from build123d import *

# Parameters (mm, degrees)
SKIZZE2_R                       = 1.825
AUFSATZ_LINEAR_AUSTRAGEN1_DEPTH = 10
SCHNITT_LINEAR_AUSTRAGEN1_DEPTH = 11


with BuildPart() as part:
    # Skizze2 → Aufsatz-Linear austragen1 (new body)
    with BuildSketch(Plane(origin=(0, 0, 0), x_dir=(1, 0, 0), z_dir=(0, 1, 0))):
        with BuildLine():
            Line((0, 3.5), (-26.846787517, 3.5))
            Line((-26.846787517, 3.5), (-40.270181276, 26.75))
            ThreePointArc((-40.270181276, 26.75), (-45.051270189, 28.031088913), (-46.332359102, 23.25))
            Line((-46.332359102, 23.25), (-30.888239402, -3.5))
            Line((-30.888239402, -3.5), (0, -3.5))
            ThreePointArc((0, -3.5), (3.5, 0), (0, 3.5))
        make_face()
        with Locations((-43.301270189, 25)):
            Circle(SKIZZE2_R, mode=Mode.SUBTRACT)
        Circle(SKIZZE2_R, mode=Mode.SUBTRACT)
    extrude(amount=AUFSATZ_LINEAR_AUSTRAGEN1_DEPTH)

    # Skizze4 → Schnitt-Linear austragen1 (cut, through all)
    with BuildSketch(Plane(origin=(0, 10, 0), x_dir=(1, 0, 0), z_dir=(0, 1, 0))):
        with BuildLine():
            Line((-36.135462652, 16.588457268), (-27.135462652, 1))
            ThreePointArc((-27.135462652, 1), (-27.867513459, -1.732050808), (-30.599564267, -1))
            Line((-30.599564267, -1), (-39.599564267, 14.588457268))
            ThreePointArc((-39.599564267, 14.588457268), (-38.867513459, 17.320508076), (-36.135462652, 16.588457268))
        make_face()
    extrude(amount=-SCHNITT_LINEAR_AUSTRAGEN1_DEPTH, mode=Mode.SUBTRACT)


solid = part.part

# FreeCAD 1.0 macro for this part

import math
import FreeCAD as App
import Part
import Sketcher

V = App.Vector
Q = App.Units.Quantity

doc = App.newDocument("Part")
params = doc.addObject("Spreadsheet::Sheet", "Params")
for row, (alias, value) in enumerate([
    ("sketch1_radius", "3.5 mm"),
    ("sketch1_diameter", "3.65 mm"),
    ("pad1_length", "10 mm"),
    ("sketch2_radius", "2 mm"),
    ("sketch2_length", "18 mm"),
], start=1):
    params.set(f"A{row}", alias)
    params.set(f"B{row}", "=" + value)
    params.setAlias(f"B{row}", alias)

body = doc.addObject("PartDesign::Body", "Body")

sketch1 = doc.addObject("Sketcher::SketchObject", "Sketch")
body.addObject(sketch1)
sketch1.AttachmentSupport = (doc.XZ_Plane, [""])
sketch1.MapMode = "FlatFace"
sketch1.addGeometry([
    Part.LineSegment(V(0, -3.5, 0), V(-26.846788, -3.5, 0)),
    Part.LineSegment(V(-26.846788, -3.5, 0), V(-40.270181, -26.75, 0)),
    Part.ArcOfCircle(Part.Circle(V(-43.30127, -25, 0), V(0, 0, 1), 3.5), math.radians(150), math.radians(330)),
    Part.LineSegment(V(-46.332359, -23.25, 0), V(-30.888239, 3.5, 0)),
    Part.LineSegment(V(-30.888239, 3.5, 0), V(0, 3.5, 0)),
    Part.ArcOfCircle(Part.Circle(V(0, 0, 0), V(0, 0, 1), 3.5), math.radians(-90), math.radians(90)),
    Part.Circle(V(0, 0, 0), V(0, 0, 1), 1.825),
    Part.Circle(V(-43.30127, -25, 0), V(0, 0, 1), 1.825),
], False)
sketch1.addConstraint([
    Sketcher.Constraint("Coincident", 0, 2, 1, 1),
    Sketcher.Constraint("Tangent", 1, 2, 2, 2),
    Sketcher.Constraint("Tangent", 2, 1, 3, 1),
    Sketcher.Constraint("Coincident", 3, 2, 4, 1),
    Sketcher.Constraint("Tangent", 4, 2, 5, 2),
    Sketcher.Constraint("Tangent", 5, 1, 0, 1),
    Sketcher.Constraint("Horizontal", 0),
    Sketcher.Constraint("Horizontal", 4),
    Sketcher.Constraint("Coincident", 5, 3, -1, 1),
    Sketcher.Constraint("Coincident", 6, 3, -1, 1),
    Sketcher.Constraint("Coincident", 7, 3, 2, 3),
    Sketcher.Constraint("Equal", 2, 5),
    Sketcher.Constraint("Equal", 6, 7),
    Sketcher.Constraint("Parallel", 1, 3),
    Sketcher.Constraint("Radius", 2, 3.5),
    Sketcher.Constraint("Diameter", 6, 3.65),
    Sketcher.Constraint("Angle", 1, Q("-120 deg")),
    Sketcher.Constraint("DistanceY", 2, 3, -1, 1, 25.0),
    Sketcher.Constraint("DistanceX", 4, 1, 4, 2, 30.888239),
])
sketch1.setExpression("Constraints[14]", "Params.sketch1_radius")
sketch1.setExpression("Constraints[15]", "Params.sketch1_diameter")
pad1 = doc.addObject("PartDesign::Pad", "Pad")
body.addObject(pad1)
pad1.Profile = sketch1
pad1.setExpression("Length", "Params.pad1_length")
pad1.Reversed = True

sketch2 = doc.addObject("Sketcher::SketchObject", "Sketch001")
body.addObject(sketch2)
sketch2.AttachmentSupport = (doc.XZ_Plane, [""])
sketch2.MapMode = "FlatFace"
sketch2.AttachmentOffset = App.Placement(V(0, 0, -10), App.Rotation())
sketch2.addGeometry([
    Part.LineSegment(V(-27.135463, -1, 0), V(-36.135463, -16.588457, 0)),
    Part.ArcOfCircle(Part.Circle(V(-37.867513, -15.588457, 0), V(0, 0, 1), 2), math.radians(150), math.radians(330)),
    Part.LineSegment(V(-39.599564, -14.588457, 0), V(-30.599564, 1, 0)),
    Part.ArcOfCircle(Part.Circle(V(-28.867513, 0, 0), V(0, 0, 1), 2), math.radians(-30), math.radians(150)),
], False)
sketch2.addConstraint([
    Sketcher.Constraint("Tangent", 0, 2, 1, 2),
    Sketcher.Constraint("Tangent", 1, 1, 2, 1),
    Sketcher.Constraint("Tangent", 2, 2, 3, 2),
    Sketcher.Constraint("Tangent", 3, 1, 0, 1),
    Sketcher.Constraint("Equal", 1, 3),
    Sketcher.Constraint("PointOnObject", 3, 3, -1),
    Sketcher.Constraint("Radius", 1, 2.0),
    Sketcher.Constraint("Angle", 0, Q("-120 deg")),
    Sketcher.Constraint("Distance", 0, 18.0),
    Sketcher.Constraint("DistanceX", 1, 3, -1, 1, 37.867513),
])
sketch2.setExpression("Constraints[6]", "Params.sketch2_radius")
sketch2.setExpression("Constraints[8]", "Params.sketch2_length")
pocket1 = doc.addObject("PartDesign::Pocket", "Pocket")
body.addObject(pocket1)
pocket1.Profile = sketch2
pocket1.Type = "ThroughAll"
pocket1.Reversed = True

doc.recompute()
